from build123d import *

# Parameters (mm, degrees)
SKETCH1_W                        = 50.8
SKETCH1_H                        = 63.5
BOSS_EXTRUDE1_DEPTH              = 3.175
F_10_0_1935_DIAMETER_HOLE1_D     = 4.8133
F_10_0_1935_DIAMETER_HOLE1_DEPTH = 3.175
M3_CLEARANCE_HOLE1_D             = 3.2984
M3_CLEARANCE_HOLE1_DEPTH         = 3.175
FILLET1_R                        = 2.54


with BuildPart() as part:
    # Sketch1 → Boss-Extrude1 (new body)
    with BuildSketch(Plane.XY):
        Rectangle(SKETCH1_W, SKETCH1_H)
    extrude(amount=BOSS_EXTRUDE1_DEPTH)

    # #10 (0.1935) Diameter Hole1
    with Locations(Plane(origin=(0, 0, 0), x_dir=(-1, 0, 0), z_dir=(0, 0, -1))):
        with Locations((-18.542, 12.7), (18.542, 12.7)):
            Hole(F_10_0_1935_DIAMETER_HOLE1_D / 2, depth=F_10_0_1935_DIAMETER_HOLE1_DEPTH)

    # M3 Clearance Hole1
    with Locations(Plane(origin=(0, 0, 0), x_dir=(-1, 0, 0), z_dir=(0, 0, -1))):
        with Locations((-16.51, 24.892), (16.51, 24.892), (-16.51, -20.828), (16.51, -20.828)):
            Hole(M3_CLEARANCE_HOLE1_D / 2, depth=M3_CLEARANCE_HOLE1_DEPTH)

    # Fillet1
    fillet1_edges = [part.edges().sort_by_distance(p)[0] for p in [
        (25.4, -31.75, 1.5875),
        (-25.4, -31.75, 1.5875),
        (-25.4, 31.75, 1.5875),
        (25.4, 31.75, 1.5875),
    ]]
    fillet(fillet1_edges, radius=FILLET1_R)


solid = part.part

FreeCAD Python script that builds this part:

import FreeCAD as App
import Part
import Sketcher
Q = App.Units.Quantity


def edges_at(feature, points):
    """Names of the edges that pass closest to the given points."""
    edges = feature.Shape.Edges
    near = lambda p: min(range(len(edges)), key=lambda i: edges[i].distToShape(Part.Vertex(*p))[0])
    return sorted({f"Edge{near(p) + 1}" for p in points})


def add_polygon(sketch, points):
    """Adds a closed chain of lines whose ends are joined by coincident constraints."""
    first, n = sketch.GeometryCount, len(points)
    for a, b in zip(points, points[1:] + points[:1]):
        sketch.addGeometry(Part.LineSegment(App.Vector(*a, 0), App.Vector(*b, 0)), False)
    for i in range(n):
        sketch.addConstraint(Sketcher.Constraint("Coincident", first + i, 2, first + (i + 1) % n, 1))

doc = App.newDocument("Part")
body = doc.addObject("PartDesign::Body", "Body")

# Sketch on XY plane
sketch1 = body.newObject("Sketcher::SketchObject", "Sketch")
sketch1.AttachmentSupport = (doc.getObject("XY_Plane"), [""])
sketch1.MapMode = "FlatFace"
add_polygon(sketch1, [(-25.4, 31.75), (-25.4, -31.75), (25.4, -31.75), (25.4, 31.75)])  # lines 0-3
sketch1.addConstraint(Sketcher.Constraint("Vertical", 0))
sketch1.addConstraint(Sketcher.Constraint("Horizontal", 1))
sketch1.addConstraint(Sketcher.Constraint("Vertical", 2))
sketch1.addConstraint(Sketcher.Constraint("Horizontal", 3))
sketch1.addConstraint(Sketcher.Constraint("Symmetric", 0, 2, 2, 2, -1, 1))
sketch1.addConstraint(Sketcher.Constraint("DistanceX", 1, 1, 1, 2, Q("2 in")))
sketch1.addConstraint(Sketcher.Constraint("DistanceY", 0, 2, 0, 1, Q("2.5 in")))
pad1 = body.newObject("PartDesign::Pad", "Pad")
pad1.Profile = sketch1
pad1.Length = Q("0.125 in")

# Sketch on XY plane
sketch2 = body.newObject("Sketcher::SketchObject", "Sketch001")
sketch2.AttachmentSupport = (doc.getObject("XY_Plane"), [""])
sketch2.MapMode = "FlatFace"
sketch2.addGeometry(Part.Circle(App.Vector(18.542, 12.7, 0), App.Vector(0, 0, 1), 2.40665), False)
sketch2.addGeometry(Part.Circle(App.Vector(-18.542, 12.7, 0), App.Vector(0, 0, 1), 2.40665), False)
sketch2.addConstraint(Sketcher.Constraint("Equal", 0, 1))
sketch2.addConstraint(Sketcher.Constraint("Symmetric", 0, 3, 1, 3, -2))
sketch2.addConstraint(Sketcher.Constraint("Diameter", 0, Q("0.1895 in")))
sketch2.addConstraint(Sketcher.Constraint("DistanceY", -1, 1, 0, 3, Q("0.5 in")))
sketch2.addConstraint(Sketcher.Constraint("DistanceX", -1, 1, 0, 3, Q("0.73 in")))
doc.recompute()
hole = body.newObject("PartDesign::Hole", "Hole")
hole.Profile = sketch2
hole.ThreadType = "None"
hole.Diameter = Q("0.1895 in")
hole.DepthType = "Dimension"
hole.Depth = Q("0.125 in")
hole.DrillPoint = "Flat"
hole.Reversed = True

# Sketch on XY plane
sketch3 = body.newObject("Sketcher::SketchObject", "Sketch002")
sketch3.AttachmentSupport = (doc.getObject("XY_Plane"), [""])
sketch3.MapMode = "FlatFace"
sketch3.addGeometry(Part.Circle(App.Vector(16.51, 24.892, 0), App.Vector(0, 0, 1), 1.6492), False)
sketch3.addGeometry(Part.Circle(App.Vector(-16.51, 24.892, 0), App.Vector(0, 0, 1), 1.6492), False)
sketch3.addGeometry(Part.Circle(App.Vector(16.51, -20.828, 0), App.Vector(0, 0, 1), 1.6492), False)
sketch3.addGeometry(Part.Circle(App.Vector(-16.51, -20.828, 0), App.Vector(0, 0, 1), 1.6492), False)
sketch3.addConstraint(Sketcher.Constraint("Equal", 0, 1))
sketch3.addConstraint(Sketcher.Constraint("Equal", 1, 2))
sketch3.addConstraint(Sketcher.Constraint("Equal", 2, 3))
sketch3.addConstraint(Sketcher.Constraint("Symmetric", 0, 3, 1, 3, -2))
sketch3.addConstraint(Sketcher.Constraint("Symmetric", 2, 3, 3, 3, -2))
sketch3.addConstraint(Sketcher.Constraint("Vertical", 0, 3, 2, 3))
sketch3.addConstraint(Sketcher.Constraint("DistanceX", 1, 3, 0, 3, Q("1.3 in")))
sketch3.addConstraint(Sketcher.Constraint("DistanceY", 2, 3, 0, 3, Q("1.8 in")))
sketch3.addConstraint(Sketcher.Constraint("Diameter", 0, Q("3.2984 mm")))
sketch3.addConstraint(Sketcher.Constraint("DistanceY", -1, 1, 0, 3, Q("0.98 in")))
doc.recompute()
hole2 = body.newObject("PartDesign::Hole", "Hole001")
hole2.Profile = sketch3
hole2.ThreadType = "None"
hole2.Diameter = 3.2984
hole2.DepthType = "Dimension"
hole2.Depth = Q("0.125 in")
hole2.DrillPoint = "Flat"
hole2.Reversed = True
doc.recompute()

fillet = body.newObject("PartDesign::Fillet", "Fillet")
fillet.Base = (hole2, edges_at(hole2, [
    (25.4, -31.75, 1.587),
    (-25.4, -31.75, 1.587),
    (-25.4, 31.75, 1.587),
    (25.4, 31.75, 1.587),
]))
fillet.Radius = Q("0.1 in")

doc.recompute()
